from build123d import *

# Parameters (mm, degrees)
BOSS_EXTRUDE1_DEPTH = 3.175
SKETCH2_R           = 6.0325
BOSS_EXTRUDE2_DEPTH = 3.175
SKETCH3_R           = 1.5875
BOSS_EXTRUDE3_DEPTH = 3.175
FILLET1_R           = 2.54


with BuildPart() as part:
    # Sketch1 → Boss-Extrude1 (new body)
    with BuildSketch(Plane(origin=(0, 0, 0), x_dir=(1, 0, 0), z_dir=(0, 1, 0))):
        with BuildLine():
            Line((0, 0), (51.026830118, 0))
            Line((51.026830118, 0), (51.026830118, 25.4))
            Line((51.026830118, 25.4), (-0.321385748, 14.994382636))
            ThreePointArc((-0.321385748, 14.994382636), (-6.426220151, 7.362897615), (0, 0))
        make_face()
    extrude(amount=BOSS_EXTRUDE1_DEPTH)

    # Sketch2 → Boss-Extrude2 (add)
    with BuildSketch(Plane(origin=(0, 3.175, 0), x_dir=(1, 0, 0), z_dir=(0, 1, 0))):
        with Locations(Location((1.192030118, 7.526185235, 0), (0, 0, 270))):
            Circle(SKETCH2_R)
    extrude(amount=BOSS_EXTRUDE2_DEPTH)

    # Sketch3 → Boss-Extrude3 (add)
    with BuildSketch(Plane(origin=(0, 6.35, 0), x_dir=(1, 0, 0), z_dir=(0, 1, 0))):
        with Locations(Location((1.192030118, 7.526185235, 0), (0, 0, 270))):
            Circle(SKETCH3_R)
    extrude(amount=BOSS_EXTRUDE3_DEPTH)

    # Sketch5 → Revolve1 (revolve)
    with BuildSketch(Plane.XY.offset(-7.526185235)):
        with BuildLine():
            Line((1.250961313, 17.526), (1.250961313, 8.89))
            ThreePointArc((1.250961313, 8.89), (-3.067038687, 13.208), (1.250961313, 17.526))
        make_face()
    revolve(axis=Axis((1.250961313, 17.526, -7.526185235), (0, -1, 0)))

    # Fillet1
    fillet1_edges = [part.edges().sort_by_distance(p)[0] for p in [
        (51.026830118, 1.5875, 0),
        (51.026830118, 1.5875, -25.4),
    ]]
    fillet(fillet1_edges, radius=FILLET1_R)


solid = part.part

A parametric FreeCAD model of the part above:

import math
import FreeCAD as App
import Part
import Sketcher
Q = App.Units.Quantity


def edges_at(feature, points):
    """Names of the edges that pass closest to the given points."""
    edges = feature.Shape.Edges
    near = lambda p: min(range(len(edges)), key=lambda i: edges[i].distToShape(Part.Vertex(*p))[0])
    return sorted({f"Edge{near(p) + 1}" for p in points})

doc = App.newDocument("Part")
body = doc.addObject("PartDesign::Body", "Body")

sketch1 = doc.addObject("Sketcher::SketchObject", "Sketch")
body.addObject(sketch1)
sketch1.AttachmentSupport = (doc.XZ_Plane, [""])
sketch1.MapMode = "FlatFace"
sketch1.addGeometry([
    Part.LineSegment(App.Vector(0, 0, 0), App.Vector(51, 0, 0)),
    Part.LineSegment(App.Vector(51, 0, 0), App.Vector(51, -25, 0)),
    Part.LineSegment(App.Vector(51, -25, 0), App.Vector(0, -15, 0)),
    Part.ArcOfCircle(Part.Circle(App.Vector(1, -8, 0), App.Vector(0, 0, 1), 8), math.radians(99), math.radians(259)),
], False)
sketch1.addConstraint([
    Sketcher.Constraint("Coincident", 0, 2, 1, 1),
    Sketcher.Constraint("Coincident", 1, 2, 2, 1),
    Sketcher.Constraint("Tangent", 2, 2, 3, 2),
    Sketcher.Constraint("Coincident", 3, 1, 0, 1),
    Sketcher.Constraint("Horizontal", 0),
    Sketcher.Constraint("Vertical", 1),
    Sketcher.Constraint("Coincident", 3, 1, -1, 1),
    Sketcher.Constraint("Radius", 3, Q("0.3 in")),
    Sketcher.Constraint("DistanceY", 1, 2, 1, 1, Q("1 in")),
    Sketcher.Constraint("DistanceX", 3, 3, 0, 2, Q("1.962 in")),
    Sketcher.Constraint("DistanceX", 0, 1, 0, 2, 51.02683),
])
pad1 = doc.addObject("PartDesign::Pad", "Pad")
body.addObject(pad1)
pad1.Profile = sketch1
pad1.Length = Q("0.125 in")
pad1.Reversed = True

sketch2 = doc.addObject("Sketcher::SketchObject", "Sketch001")
body.addObject(sketch2)
sketch2.AttachmentSupport = (doc.XZ_Plane, [""])
sketch2.MapMode = "FlatFace"
sketch2.AttachmentOffset = App.Placement(App.Vector(0, 0, -0.125 * 25.4), App.Rotation())
sketch2.addGeometry(Part.Circle(App.Vector(1, -8, 0), App.Vector(0, 0, 1), 6), False)
sketch2.addConstraint([
    Sketcher.Constraint("Diameter", 0, Q("0.475 in")),
    Sketcher.Constraint("DistanceX", -1, 1, 0, 3, 1.19203),
    Sketcher.Constraint("DistanceY", 0, 3, -1, 1, 7.526185),
])
pad2 = doc.addObject("PartDesign::Pad", "Pad001")
body.addObject(pad2)
pad2.Profile = sketch2
pad2.Length = Q("0.125 in")
pad2.Reversed = True

sketch3 = doc.addObject("Sketcher::SketchObject", "Sketch002")
body.addObject(sketch3)
sketch3.AttachmentSupport = (doc.XZ_Plane, [""])
sketch3.MapMode = "FlatFace"
sketch3.AttachmentOffset = App.Placement(App.Vector(0, 0, -0.25 * 25.4), App.Rotation())
sketch3.addGeometry(Part.Circle(App.Vector(1.2, -7.5, 0), App.Vector(0, 0, 1), 1.6), False)
sketch3.addConstraint([
    Sketcher.Constraint("Diameter", 0, Q("0.125 in")),
    Sketcher.Constraint("DistanceX", -1, 1, 0, 3, 1.19203),
    Sketcher.Constraint("DistanceY", 0, 3, -1, 1, 7.526185),
])
pad3 = doc.addObject("PartDesign::Pad", "Pad002")
body.addObject(pad3)
pad3.Profile = sketch3
pad3.Length = Q("0.125 in")
pad3.Reversed = True

sketch4 = doc.addObject("Sketcher::SketchObject", "Sketch003")
body.addObject(sketch4)
sketch4.AttachmentSupport = (doc.XY_Plane, [""])
sketch4.MapMode = "FlatFace"
sketch4.AttachmentOffset = App.Placement(App.Vector(0, 0, -7.526185), App.Rotation())
sketch4.addGeometry([
    Part.LineSegment(App.Vector(1.3, 8.9, 0), App.Vector(1.3, 17.5, 0)),
    Part.ArcOfCircle(Part.Circle(App.Vector(1.3, 13.2, 0), App.Vector(0, 0, 1), 4.3), math.radians(90), math.radians(270)),
], False)
sketch4.addGeometry(Part.LineSegment(App.Vector(1.3, 17.5, 0), App.Vector(1.3, 8.9, 0)), True)
sketch4.addConstraint([
    Sketcher.Constraint("Coincident", 0, 1, 1, 2),
    Sketcher.Constraint("Coincident", 1, 1, 0, 2),
    Sketcher.Constraint("Vertical", 0),
    Sketcher.Constraint("Vertical", 2),
    Sketcher.Constraint("Coincident", 2, 1, 1, 1),
    Sketcher.Constraint("Vertical", 1, 3, 0, 1),
    Sketcher.Constraint("Equal", 0, 2),
    Sketcher.Constraint("Radius", 1, Q("0.17 in")),
    Sketcher.Constraint("DistanceY", -1, 1, 1, 3, Q("0.52 in")),
    Sketcher.Constraint("DistanceX", -1, 1, 1, 3, 1.250961),
])
revolution = doc.addObject("PartDesign::Revolution", "Revolution")
body.addObject(revolution)
revolution.Profile = sketch4
revolution.ReferenceAxis = (sketch4, ["Axis0"])
revolution.Angle = 360
doc.recompute()

fillet = doc.addObject("PartDesign::Fillet", "Fillet")
body.addObject(fillet)
fillet.Base = (revolution, edges_at(revolution, [(51.027, 1.587, 0), (51.027, 1.587, -25.4)]))
fillet.Radius = Q("0.1 in")

doc.recompute()
